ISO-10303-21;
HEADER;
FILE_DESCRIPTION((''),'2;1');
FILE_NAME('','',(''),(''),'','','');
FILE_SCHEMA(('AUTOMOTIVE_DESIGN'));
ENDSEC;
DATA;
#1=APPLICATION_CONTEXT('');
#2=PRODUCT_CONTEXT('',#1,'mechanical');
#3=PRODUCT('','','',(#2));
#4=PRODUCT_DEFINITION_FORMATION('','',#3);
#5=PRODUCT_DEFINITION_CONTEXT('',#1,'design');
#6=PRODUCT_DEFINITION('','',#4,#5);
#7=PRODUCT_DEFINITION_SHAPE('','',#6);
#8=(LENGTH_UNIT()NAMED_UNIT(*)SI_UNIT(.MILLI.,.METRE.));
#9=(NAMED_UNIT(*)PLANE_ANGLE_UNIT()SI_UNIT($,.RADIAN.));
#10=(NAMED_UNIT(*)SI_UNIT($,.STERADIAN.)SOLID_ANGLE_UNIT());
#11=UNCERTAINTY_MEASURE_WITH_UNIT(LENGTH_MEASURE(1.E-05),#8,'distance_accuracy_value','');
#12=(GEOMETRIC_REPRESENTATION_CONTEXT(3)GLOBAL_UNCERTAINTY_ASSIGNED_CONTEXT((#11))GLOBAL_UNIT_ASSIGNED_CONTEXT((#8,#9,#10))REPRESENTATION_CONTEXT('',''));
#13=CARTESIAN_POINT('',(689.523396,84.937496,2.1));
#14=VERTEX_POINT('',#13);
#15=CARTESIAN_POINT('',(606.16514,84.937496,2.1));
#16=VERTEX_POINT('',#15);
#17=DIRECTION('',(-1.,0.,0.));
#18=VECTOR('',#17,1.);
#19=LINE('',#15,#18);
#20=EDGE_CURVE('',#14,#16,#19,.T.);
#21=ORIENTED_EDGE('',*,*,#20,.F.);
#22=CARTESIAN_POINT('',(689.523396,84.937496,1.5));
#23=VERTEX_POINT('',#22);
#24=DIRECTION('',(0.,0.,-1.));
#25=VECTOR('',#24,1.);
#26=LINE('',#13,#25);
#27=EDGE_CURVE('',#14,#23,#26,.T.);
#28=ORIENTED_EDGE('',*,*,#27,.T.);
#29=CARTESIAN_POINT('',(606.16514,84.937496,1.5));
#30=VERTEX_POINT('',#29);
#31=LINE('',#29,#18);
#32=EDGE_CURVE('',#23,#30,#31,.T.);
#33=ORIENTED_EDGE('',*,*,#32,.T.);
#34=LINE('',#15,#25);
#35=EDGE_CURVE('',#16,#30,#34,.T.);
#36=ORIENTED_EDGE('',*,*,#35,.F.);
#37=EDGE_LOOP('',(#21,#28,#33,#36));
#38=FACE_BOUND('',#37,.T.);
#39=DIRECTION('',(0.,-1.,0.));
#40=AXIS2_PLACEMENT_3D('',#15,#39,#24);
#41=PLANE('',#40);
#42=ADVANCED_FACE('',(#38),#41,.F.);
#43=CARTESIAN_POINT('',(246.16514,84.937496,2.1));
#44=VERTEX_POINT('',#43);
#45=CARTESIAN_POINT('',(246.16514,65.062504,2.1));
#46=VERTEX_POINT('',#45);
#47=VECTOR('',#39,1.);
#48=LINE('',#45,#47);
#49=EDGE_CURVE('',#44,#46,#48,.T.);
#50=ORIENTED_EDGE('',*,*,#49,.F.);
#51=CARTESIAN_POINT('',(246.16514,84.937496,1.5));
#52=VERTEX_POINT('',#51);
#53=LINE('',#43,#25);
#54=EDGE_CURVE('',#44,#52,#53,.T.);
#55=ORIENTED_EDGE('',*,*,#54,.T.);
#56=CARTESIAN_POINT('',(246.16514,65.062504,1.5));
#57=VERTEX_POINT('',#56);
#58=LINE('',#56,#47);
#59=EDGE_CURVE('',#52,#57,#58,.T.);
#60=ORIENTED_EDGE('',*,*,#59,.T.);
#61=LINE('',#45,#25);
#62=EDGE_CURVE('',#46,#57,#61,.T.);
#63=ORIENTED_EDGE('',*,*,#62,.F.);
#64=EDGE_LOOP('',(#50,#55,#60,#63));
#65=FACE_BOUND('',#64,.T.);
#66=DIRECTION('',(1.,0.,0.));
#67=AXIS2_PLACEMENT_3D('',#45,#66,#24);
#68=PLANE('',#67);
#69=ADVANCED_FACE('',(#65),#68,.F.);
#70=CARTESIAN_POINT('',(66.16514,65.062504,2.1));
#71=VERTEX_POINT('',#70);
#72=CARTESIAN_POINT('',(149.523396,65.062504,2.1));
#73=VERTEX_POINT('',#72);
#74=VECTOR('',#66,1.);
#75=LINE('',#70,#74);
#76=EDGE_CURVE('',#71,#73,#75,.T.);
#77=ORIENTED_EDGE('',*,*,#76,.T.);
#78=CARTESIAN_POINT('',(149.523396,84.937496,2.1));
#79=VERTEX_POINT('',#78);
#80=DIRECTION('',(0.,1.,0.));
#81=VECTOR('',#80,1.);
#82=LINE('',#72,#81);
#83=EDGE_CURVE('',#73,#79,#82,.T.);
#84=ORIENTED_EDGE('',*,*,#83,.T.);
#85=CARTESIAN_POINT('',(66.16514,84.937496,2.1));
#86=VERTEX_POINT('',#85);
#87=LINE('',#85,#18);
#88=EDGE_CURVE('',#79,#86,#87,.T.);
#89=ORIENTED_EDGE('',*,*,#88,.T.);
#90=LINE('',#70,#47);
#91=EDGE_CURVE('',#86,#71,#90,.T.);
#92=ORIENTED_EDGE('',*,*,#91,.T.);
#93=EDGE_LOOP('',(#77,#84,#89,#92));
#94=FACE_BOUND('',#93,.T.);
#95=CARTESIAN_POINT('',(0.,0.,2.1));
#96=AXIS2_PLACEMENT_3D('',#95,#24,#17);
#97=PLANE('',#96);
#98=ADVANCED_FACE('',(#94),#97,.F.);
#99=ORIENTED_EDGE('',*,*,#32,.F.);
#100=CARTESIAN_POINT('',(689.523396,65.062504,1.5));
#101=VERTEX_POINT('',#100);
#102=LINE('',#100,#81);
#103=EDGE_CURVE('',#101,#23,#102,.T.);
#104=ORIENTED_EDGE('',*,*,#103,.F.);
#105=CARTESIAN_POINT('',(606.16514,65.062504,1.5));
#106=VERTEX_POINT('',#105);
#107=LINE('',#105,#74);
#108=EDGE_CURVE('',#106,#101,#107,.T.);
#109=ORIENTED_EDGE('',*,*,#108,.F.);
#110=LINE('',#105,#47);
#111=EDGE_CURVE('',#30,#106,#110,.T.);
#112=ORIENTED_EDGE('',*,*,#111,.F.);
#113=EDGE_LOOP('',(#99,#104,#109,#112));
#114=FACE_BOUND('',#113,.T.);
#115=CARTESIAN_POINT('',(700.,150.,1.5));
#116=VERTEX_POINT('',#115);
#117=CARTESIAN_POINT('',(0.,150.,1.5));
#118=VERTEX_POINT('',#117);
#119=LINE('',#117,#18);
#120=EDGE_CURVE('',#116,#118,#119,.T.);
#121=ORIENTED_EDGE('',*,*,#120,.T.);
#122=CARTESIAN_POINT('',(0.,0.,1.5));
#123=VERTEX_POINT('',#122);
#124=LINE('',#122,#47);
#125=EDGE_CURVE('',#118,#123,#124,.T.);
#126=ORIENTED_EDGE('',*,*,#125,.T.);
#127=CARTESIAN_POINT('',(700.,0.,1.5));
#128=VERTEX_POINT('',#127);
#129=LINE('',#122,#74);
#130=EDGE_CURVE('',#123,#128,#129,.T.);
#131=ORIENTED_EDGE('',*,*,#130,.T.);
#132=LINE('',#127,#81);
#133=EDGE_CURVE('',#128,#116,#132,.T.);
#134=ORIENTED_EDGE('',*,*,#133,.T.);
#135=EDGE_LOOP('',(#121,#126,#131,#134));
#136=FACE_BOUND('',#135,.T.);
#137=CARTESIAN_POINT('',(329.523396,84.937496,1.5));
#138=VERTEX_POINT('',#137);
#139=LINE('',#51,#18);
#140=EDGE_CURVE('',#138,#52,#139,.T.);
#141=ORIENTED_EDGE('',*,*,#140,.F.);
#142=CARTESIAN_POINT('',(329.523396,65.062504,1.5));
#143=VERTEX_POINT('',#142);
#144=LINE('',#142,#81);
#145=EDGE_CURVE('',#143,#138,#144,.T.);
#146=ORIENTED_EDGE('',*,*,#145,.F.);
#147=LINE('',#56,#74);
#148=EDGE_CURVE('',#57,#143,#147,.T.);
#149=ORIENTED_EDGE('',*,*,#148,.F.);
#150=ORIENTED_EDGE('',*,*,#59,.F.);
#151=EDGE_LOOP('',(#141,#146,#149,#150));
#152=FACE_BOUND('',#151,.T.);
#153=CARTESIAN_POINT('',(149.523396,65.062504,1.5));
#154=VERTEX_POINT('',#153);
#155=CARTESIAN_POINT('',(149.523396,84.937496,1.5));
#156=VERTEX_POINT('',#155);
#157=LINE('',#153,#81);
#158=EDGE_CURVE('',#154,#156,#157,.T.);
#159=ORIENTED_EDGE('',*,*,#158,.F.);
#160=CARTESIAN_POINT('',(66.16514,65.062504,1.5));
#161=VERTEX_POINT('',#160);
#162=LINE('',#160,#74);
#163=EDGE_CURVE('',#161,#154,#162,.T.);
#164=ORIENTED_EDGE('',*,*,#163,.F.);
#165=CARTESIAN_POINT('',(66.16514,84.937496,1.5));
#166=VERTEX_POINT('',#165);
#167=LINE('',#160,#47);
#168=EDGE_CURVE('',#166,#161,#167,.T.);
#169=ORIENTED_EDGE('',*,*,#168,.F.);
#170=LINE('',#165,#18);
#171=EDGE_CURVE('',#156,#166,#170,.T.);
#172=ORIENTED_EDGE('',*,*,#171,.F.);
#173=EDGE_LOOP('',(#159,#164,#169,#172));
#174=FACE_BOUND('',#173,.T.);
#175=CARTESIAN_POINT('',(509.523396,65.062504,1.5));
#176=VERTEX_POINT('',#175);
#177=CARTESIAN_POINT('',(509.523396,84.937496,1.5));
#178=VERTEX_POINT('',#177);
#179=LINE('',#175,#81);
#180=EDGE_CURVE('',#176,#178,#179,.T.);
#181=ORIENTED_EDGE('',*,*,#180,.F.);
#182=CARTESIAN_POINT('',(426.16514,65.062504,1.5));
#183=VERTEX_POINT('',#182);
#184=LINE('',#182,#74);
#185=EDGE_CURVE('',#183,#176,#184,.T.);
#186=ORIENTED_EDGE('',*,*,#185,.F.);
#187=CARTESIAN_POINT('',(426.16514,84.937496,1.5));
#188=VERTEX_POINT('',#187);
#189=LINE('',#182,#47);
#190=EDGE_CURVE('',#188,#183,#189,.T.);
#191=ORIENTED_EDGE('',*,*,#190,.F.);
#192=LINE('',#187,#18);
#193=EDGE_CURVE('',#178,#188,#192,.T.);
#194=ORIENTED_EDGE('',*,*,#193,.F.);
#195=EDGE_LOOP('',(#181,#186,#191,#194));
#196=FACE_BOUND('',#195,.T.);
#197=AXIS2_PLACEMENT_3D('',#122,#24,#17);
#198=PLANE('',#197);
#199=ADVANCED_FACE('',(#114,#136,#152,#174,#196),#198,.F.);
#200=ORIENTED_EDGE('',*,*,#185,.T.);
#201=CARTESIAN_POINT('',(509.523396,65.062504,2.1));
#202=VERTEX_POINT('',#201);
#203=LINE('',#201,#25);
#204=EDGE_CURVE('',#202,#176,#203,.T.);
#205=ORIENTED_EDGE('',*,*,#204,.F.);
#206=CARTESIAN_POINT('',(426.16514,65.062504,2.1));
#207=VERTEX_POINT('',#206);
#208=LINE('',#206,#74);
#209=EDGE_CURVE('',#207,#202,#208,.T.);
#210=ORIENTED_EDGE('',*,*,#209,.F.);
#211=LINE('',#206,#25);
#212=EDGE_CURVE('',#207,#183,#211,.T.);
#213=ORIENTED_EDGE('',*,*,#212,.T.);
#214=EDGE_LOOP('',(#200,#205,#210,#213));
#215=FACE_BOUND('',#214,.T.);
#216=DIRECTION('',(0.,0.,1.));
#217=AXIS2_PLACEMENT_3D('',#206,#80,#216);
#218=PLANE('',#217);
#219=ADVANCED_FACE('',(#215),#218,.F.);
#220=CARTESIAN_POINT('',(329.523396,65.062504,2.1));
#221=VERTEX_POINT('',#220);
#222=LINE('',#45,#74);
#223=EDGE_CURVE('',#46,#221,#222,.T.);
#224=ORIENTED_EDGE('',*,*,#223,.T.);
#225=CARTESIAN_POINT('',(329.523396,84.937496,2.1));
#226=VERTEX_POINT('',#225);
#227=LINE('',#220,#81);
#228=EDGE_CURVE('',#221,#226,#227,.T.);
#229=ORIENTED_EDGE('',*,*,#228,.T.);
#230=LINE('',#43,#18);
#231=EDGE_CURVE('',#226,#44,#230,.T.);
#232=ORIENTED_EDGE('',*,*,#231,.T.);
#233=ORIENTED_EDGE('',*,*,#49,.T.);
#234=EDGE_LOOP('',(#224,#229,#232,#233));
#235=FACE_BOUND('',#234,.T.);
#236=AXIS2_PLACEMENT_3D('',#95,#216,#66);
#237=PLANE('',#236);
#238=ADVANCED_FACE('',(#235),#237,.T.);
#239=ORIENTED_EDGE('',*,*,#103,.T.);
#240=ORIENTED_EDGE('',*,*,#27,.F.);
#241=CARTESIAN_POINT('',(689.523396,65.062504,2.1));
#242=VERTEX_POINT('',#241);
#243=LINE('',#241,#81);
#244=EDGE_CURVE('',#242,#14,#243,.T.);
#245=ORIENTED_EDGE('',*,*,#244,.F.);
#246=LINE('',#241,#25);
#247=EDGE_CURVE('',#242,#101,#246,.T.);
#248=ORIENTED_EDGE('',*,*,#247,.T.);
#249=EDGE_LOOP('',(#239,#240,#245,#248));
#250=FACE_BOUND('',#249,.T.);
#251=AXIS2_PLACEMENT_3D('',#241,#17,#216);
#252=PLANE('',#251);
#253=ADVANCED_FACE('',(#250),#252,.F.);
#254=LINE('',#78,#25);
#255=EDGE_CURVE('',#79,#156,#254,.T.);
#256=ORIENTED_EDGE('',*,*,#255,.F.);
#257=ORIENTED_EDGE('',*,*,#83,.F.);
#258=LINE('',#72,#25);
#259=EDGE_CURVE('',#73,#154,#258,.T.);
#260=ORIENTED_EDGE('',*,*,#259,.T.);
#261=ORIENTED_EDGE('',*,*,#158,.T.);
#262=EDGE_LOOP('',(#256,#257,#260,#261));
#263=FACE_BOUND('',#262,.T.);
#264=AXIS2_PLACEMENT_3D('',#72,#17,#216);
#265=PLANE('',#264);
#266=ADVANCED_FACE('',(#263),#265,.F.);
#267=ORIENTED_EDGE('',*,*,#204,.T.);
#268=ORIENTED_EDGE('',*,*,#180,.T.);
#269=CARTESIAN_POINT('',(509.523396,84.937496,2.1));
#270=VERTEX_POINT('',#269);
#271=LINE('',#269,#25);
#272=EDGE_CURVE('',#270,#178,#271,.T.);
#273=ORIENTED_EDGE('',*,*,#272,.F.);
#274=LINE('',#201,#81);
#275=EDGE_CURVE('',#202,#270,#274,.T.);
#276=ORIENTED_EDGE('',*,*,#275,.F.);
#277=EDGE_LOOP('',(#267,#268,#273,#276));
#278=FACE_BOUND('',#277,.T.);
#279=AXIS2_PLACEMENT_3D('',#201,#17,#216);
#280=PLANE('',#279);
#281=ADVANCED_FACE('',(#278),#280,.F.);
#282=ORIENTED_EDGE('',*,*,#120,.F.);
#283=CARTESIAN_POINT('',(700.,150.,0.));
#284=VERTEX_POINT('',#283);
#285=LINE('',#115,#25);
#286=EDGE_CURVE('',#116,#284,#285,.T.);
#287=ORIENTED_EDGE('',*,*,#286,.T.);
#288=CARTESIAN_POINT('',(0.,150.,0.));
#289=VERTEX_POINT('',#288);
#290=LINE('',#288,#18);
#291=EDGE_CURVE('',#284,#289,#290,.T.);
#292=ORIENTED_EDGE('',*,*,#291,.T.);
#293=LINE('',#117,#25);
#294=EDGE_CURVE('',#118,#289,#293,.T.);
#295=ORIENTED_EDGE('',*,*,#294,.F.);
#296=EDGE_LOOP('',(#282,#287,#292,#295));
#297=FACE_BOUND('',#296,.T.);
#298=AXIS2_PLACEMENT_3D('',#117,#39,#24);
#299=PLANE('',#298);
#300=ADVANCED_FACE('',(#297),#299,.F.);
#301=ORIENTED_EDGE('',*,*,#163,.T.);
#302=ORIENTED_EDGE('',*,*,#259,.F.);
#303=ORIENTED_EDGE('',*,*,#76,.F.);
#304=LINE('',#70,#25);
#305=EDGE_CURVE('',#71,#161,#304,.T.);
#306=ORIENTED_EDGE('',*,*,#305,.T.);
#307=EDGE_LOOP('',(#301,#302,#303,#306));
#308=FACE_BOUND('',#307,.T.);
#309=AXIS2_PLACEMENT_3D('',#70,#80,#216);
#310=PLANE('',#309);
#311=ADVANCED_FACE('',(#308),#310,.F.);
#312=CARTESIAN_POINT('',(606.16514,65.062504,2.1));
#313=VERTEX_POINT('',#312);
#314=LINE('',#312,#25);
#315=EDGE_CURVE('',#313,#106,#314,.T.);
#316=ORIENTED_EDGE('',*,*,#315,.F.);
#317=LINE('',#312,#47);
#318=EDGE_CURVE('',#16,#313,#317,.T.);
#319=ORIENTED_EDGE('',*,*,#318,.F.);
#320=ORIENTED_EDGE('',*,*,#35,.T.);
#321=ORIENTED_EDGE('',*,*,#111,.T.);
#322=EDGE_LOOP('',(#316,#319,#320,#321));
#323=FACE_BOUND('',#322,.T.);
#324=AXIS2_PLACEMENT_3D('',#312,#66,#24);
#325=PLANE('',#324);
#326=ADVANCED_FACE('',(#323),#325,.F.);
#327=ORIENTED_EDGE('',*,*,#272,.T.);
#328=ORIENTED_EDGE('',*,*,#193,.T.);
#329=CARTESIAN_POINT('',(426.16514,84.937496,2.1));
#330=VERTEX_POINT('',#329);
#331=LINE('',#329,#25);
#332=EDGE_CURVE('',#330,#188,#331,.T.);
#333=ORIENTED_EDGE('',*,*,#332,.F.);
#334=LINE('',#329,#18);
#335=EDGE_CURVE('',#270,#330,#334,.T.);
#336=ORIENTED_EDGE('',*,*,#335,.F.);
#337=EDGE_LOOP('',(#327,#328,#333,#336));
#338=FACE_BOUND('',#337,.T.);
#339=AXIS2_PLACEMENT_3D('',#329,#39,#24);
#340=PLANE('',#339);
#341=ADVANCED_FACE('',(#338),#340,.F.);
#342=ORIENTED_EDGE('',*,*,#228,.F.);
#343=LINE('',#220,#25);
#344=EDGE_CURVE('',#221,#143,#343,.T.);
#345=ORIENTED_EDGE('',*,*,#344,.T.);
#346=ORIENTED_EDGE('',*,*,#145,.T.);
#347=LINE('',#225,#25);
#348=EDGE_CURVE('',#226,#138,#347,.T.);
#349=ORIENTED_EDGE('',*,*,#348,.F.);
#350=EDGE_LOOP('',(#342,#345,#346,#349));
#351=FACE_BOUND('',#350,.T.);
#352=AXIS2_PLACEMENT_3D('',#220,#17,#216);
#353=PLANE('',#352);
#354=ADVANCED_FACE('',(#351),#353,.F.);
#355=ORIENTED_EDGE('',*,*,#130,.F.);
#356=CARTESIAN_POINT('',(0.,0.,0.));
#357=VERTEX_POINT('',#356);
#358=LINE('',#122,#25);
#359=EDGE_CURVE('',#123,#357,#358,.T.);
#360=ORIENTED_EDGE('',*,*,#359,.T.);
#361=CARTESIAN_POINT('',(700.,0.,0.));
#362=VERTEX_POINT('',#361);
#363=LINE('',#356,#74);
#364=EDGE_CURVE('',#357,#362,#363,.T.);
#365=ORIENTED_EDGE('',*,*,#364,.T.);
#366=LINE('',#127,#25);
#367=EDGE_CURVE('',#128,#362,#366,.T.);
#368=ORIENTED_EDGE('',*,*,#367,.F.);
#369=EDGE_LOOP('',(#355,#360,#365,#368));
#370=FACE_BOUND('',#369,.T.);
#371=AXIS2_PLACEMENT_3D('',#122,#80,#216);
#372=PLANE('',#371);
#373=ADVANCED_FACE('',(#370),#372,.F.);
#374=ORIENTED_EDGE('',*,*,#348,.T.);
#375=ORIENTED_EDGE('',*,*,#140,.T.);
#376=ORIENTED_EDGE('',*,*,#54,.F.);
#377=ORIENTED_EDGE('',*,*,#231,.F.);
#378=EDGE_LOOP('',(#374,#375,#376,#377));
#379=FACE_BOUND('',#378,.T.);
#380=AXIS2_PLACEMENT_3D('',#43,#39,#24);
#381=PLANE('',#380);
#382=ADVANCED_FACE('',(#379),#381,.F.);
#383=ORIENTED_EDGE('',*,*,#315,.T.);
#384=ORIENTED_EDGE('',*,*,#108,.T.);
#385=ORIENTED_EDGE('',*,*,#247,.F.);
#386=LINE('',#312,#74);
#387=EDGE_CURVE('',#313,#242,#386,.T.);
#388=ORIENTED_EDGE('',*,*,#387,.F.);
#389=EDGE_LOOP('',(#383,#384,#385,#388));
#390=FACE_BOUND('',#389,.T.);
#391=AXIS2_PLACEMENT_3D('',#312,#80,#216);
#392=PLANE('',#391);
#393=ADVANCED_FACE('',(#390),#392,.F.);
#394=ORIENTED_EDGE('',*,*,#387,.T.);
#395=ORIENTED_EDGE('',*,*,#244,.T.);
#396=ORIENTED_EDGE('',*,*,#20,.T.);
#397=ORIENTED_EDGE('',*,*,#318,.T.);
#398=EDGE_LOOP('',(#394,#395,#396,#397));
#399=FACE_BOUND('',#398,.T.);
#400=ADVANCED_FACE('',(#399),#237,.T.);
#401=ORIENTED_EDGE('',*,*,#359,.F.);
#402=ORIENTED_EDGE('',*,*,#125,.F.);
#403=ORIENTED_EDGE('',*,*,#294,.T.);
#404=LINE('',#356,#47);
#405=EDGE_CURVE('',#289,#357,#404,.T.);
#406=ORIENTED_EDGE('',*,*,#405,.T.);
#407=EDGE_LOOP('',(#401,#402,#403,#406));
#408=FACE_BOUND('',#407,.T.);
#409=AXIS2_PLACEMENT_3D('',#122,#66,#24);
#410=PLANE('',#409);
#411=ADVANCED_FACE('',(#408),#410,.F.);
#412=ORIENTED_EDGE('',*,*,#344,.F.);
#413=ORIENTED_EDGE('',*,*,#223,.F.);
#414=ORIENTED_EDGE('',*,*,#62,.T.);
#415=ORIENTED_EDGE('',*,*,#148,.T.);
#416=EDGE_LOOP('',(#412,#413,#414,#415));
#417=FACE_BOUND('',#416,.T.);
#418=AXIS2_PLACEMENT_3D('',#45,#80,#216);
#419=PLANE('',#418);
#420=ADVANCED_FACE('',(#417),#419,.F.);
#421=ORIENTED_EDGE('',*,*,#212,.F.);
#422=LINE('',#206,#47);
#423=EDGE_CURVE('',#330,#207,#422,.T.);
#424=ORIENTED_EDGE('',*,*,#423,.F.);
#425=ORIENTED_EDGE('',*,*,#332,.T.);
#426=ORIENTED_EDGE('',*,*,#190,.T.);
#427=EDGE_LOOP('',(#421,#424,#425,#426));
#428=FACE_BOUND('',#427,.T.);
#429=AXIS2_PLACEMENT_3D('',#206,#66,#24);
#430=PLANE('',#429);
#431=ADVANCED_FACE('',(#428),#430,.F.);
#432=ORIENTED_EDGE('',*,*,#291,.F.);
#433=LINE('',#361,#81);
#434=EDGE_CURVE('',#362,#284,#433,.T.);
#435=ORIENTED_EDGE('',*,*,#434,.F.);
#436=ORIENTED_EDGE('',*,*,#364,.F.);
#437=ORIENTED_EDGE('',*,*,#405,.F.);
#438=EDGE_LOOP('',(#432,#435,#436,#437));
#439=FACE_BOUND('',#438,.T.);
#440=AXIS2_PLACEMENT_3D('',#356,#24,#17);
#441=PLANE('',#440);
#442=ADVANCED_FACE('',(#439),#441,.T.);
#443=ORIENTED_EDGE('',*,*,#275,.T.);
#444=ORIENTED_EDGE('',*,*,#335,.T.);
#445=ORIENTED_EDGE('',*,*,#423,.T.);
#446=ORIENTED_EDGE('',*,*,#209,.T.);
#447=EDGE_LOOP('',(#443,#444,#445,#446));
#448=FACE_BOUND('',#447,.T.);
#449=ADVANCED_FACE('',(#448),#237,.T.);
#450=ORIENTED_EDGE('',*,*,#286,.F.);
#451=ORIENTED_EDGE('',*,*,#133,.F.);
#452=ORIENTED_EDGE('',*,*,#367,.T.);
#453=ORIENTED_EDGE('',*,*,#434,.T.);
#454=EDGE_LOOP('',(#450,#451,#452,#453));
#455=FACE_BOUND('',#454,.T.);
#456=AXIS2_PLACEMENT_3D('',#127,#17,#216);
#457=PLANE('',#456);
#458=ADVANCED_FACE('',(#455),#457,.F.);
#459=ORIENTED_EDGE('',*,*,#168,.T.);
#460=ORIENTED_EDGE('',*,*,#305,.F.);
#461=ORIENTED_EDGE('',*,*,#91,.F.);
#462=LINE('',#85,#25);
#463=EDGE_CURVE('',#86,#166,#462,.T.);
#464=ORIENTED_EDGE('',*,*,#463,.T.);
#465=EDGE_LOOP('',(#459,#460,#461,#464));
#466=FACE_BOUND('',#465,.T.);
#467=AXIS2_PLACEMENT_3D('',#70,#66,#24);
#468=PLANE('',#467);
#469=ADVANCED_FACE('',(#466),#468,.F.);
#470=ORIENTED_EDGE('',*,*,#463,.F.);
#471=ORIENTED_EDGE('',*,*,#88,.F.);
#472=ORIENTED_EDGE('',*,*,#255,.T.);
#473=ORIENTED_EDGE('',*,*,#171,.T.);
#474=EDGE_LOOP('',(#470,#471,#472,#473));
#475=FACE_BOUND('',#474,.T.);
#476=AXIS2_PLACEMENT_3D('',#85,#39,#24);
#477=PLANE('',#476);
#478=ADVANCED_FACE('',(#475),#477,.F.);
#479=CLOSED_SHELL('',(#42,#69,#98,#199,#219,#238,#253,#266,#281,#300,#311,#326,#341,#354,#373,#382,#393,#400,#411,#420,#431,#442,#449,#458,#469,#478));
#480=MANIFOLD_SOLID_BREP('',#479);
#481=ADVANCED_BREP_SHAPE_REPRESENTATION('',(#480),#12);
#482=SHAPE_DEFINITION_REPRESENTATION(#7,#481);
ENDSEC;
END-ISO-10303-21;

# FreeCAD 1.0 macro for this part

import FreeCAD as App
import Part
import Sketcher

V = App.Vector
Q = App.Units.Quantity


def add_polygon(sketch, points):
    """Adds a closed chain of lines whose ends are joined by coincident constraints."""
    first, n = sketch.GeometryCount, len(points)
    for a, b in zip(points, points[1:] + points[:1]):
        sketch.addGeometry(Part.LineSegment(App.Vector(*a, 0), App.Vector(*b, 0)), False)
    for i in range(n):
        sketch.addConstraint(Sketcher.Constraint("Coincident", first + i, 2, first + (i + 1) % n, 1))

doc = App.newDocument("Part")
params = doc.addObject("Spreadsheet::Sheet", "Params")
for row, (alias, value) in enumerate([
    ("sketch1_width", "700 mm"),
    ("sketch1_height", "150 mm"),
    ("pad1_length", "1.5 mm"),
    ("pad2_length", "0.6 mm"),
], start=1):
    params.set(f"A{row}", alias)
    params.set(f"B{row}", "=" + value)
    params.setAlias(f"B{row}", alias)

body = doc.addObject("PartDesign::Body", "Body")

sketch1 = body.newObject("Sketcher::SketchObject", "Sketch")
sketch1.AttachmentSupport = (doc.getObject("XY_Plane"), [""])
sketch1.MapMode = "FlatFace"
add_polygon(sketch1, [(0, 150), (0, 0), (700, 0), (700, 150)])
sketch1.addConstraint([
    Sketcher.Constraint("Vertical", 0),
    Sketcher.Constraint("Horizontal", 1),
    Sketcher.Constraint("Vertical", 2),
    Sketcher.Constraint("Horizontal", 3),
    Sketcher.Constraint("Coincident", 0, 2, -1, 1),
    Sketcher.Constraint("DistanceX", 1, 1, 1, 2, Q("700 mm")),
    Sketcher.Constraint("DistanceY", 0, 2, 0, 1, Q("150 mm")),
])
sketch1.setExpression("Constraints[9]", "Params.sketch1_width")
sketch1.setExpression("Constraints[10]", "Params.sketch1_height")
pad1 = body.newObject("PartDesign::Pad", "Pad")
pad1.Profile = sketch1
pad1.setExpression("Length", "Params.pad1_length")

sketch2 = body.newObject("Sketcher::SketchObject", "Sketch001")
sketch2.AttachmentSupport = (doc.getObject("XY_Plane"), [""])
sketch2.MapMode = "FlatFace"
sketch2.AttachmentOffset = App.Placement(V(0, 0, 1.5), App.Rotation())
add_polygon(sketch2, [(246, 85), (246, 65), (330, 65), (330, 85)])
add_polygon(sketch2, [(66, 85), (66, 65), (150, 65), (150, 85)])
add_polygon(sketch2, [(426, 85), (426, 65), (510, 65), (510, 85)])
add_polygon(sketch2, [(606, 85), (606, 65), (690, 65), (690, 85)])
sketch2.addConstraint([
    Sketcher.Constraint("Vertical", 0),
    Sketcher.Constraint("Horizontal", 1),
    Sketcher.Constraint("Vertical", 2),
    Sketcher.Constraint("Horizontal", 3),
    Sketcher.Constraint("Vertical", 4),
    Sketcher.Constraint("Horizontal", 5),
    Sketcher.Constraint("Vertical", 6),
    Sketcher.Constraint("Horizontal", 7),
    Sketcher.Constraint("Vertical", 8),
    Sketcher.Constraint("Horizontal", 9),
    Sketcher.Constraint("Vertical", 10),
    Sketcher.Constraint("Horizontal", 11),
    Sketcher.Constraint("Vertical", 12),
    Sketcher.Constraint("Horizontal", 13),
    Sketcher.Constraint("Vertical", 14),
    Sketcher.Constraint("Horizontal", 15),
    Sketcher.Constraint("Horizontal", 1, 2, 4, 2),
    Sketcher.Constraint("Horizontal", 3, 2, 6, 2),
    Sketcher.Constraint("Horizontal", 5, 2, 8, 2),
    Sketcher.Constraint("Horizontal", 7, 2, 10, 2),
    Sketcher.Constraint("Horizontal", 9, 2, 12, 2),
    Sketcher.Constraint("Horizontal", 11, 2, 14, 2),
    Sketcher.Constraint("Equal", 3, 5),
    Sketcher.Constraint("Equal", 7, 9),
    Sketcher.Constraint("Equal", 11, 13),
    Sketcher.Constraint("DistanceX", 4, 2, 0, 2, Q("180 mm")),
    Sketcher.Constraint("DistanceX", 0, 2, 8, 2, Q("180 mm")),
    Sketcher.Constraint("DistanceX", 8, 2, 12, 2, Q("180 mm")),
    Sketcher.Constraint("DistanceX", 1, 1, 1, 2, Q("83.358255 mm")),
    Sketcher.Constraint("DistanceY", 0, 2, 0, 1, Q("19.874993 mm")),
    Sketcher.Constraint("DistanceX", -1, 1, 0, 2, Q("246.16514 mm")),
    Sketcher.Constraint("DistanceY", -1, 1, 0, 2, Q("65.062504 mm")),
])
pad2 = body.newObject("PartDesign::Pad", "Pad001")
pad2.Profile = sketch2
pad2.setExpression("Length", "Params.pad2_length")

doc.recompute()
